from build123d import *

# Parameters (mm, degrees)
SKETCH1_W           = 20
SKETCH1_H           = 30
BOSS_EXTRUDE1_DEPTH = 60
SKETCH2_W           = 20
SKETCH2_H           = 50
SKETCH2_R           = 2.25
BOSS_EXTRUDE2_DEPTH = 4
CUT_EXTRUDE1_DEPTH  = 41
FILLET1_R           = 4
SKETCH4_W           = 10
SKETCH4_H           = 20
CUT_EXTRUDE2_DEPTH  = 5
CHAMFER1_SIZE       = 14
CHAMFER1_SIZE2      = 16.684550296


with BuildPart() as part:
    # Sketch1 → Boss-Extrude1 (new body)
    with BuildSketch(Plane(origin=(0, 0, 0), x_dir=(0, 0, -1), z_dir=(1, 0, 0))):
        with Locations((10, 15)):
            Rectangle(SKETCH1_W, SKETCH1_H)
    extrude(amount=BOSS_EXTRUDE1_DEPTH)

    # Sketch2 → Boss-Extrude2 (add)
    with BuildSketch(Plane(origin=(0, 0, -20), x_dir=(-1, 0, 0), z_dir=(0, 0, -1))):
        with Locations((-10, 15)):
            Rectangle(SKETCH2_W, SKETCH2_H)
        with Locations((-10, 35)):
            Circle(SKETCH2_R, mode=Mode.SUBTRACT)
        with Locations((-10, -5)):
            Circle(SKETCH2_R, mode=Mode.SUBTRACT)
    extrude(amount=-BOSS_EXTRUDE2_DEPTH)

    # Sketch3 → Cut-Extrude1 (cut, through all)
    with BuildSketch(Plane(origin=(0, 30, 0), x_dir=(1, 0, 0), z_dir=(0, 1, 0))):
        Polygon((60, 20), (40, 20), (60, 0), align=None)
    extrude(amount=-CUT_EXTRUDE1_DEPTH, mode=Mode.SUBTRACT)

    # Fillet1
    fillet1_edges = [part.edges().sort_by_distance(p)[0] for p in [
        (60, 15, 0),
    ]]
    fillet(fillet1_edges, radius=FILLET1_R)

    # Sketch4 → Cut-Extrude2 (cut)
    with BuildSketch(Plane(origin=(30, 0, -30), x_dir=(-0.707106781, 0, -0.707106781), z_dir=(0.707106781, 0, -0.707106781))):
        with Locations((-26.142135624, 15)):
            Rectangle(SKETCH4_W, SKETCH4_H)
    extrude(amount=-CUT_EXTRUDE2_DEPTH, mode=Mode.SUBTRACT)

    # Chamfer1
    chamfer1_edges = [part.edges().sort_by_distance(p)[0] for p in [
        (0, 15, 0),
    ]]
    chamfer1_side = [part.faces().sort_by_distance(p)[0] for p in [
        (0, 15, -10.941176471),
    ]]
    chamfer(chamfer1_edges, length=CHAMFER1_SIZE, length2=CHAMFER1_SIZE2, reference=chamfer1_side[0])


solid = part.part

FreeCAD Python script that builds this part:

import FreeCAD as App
import Part
import Sketcher


def edges_at(feature, points):
    """Names of the edges that pass closest to the given points."""
    edges = feature.Shape.Edges
    near = lambda p: min(range(len(edges)), key=lambda i: edges[i].distToShape(Part.Vertex(*p))[0])
    return sorted({f"Edge{near(p) + 1}" for p in points})

doc = App.newDocument("Part")
body = doc.addObject("PartDesign::Body", "Body")

sketch1 = body.newObject("Sketcher::SketchObject", "Sketch")
sketch1.AttachmentSupport = (doc.getObject("YZ_Plane"), [""])
sketch1.MapMode = "FlatFace"
sketch1.addGeometry(Part.LineSegment(App.Vector(30, 0, 0), App.Vector(0, 0, 0)), False)
sketch1.addGeometry(Part.LineSegment(App.Vector(0, 0, 0), App.Vector(0, -20, 0)), False)
sketch1.addGeometry(Part.LineSegment(App.Vector(0, -20, 0), App.Vector(30, -20, 0)), False)
sketch1.addGeometry(Part.LineSegment(App.Vector(30, -20, 0), App.Vector(30, 0, 0)), False)
sketch1.addConstraint(Sketcher.Constraint("Coincident", 0, 2, 1, 1))
sketch1.addConstraint(Sketcher.Constraint("Coincident", 1, 2, 2, 1))
sketch1.addConstraint(Sketcher.Constraint("Coincident", 2, 2, 3, 1))
sketch1.addConstraint(Sketcher.Constraint("Coincident", 3, 2, 0, 1))
sketch1.addConstraint(Sketcher.Constraint("Horizontal", 0))
sketch1.addConstraint(Sketcher.Constraint("Vertical", 1))
sketch1.addConstraint(Sketcher.Constraint("Horizontal", 2))
sketch1.addConstraint(Sketcher.Constraint("Vertical", 3))
sketch1.addConstraint(Sketcher.Constraint("Coincident", 0, 2, -1, 1))
sketch1.addConstraint(Sketcher.Constraint("DistanceX", 0, 2, 0, 1, 30.0))
sketch1.addConstraint(Sketcher.Constraint("DistanceY", 1, 2, 1, 1, 20.0))
pad1 = body.newObject("PartDesign::Pad", "Pad")
pad1.Profile = sketch1
pad1.Length = 60

sketch2 = body.newObject("Sketcher::SketchObject", "Sketch001")
sketch2.AttachmentSupport = (doc.getObject("XY_Plane"), [""])
sketch2.MapMode = "FlatFace"
sketch2.AttachmentOffset = App.Placement(App.Vector(0, 0, -20), App.Rotation())
sketch2.addGeometry(Part.LineSegment(App.Vector(20, 40, 0), App.Vector(20, -10, 0)), False)
sketch2.addGeometry(Part.LineSegment(App.Vector(20, -10, 0), App.Vector(0, -10, 0)), False)
sketch2.addGeometry(Part.LineSegment(App.Vector(0, -10, 0), App.Vector(0, 40, 0)), False)
sketch2.addGeometry(Part.LineSegment(App.Vector(0, 40, 0), App.Vector(20, 40, 0)), False)
sketch2.addGeometry(Part.Circle(App.Vector(10, -5, 0), App.Vector(0, 0, 1), 2.2), False)
sketch2.addGeometry(Part.Circle(App.Vector(10, 35, 0), App.Vector(0, 0, 1), 2.2), False)
sketch2.addConstraint(Sketcher.Constraint("Coincident", 0, 2, 1, 1))
sketch2.addConstraint(Sketcher.Constraint("Coincident", 1, 2, 2, 1))
sketch2.addConstraint(Sketcher.Constraint("Coincident", 2, 2, 3, 1))
sketch2.addConstraint(Sketcher.Constraint("Coincident", 3, 2, 0, 1))
sketch2.addConstraint(Sketcher.Constraint("Vertical", 0))
sketch2.addConstraint(Sketcher.Constraint("Horizontal", 1))
sketch2.addConstraint(Sketcher.Constraint("Vertical", 2))
sketch2.addConstraint(Sketcher.Constraint("Horizontal", 3))
sketch2.addConstraint(Sketcher.Constraint("Equal", 4, 5))
sketch2.addConstraint(Sketcher.Constraint("PointOnObject", 1, 2, -2))
sketch2.addConstraint(Sketcher.Constraint("Vertical", 4, 3, 5, 3))
sketch2.addConstraint(Sketcher.Constraint("Diameter", 4, 4.5))
sketch2.addConstraint(Sketcher.Constraint("DistanceX", 1, 2, 1, 1, 20.0))
sketch2.addConstraint(Sketcher.Constraint("DistanceY", 0, 2, 0, 1, 50.0))
sketch2.addConstraint(Sketcher.Constraint("DistanceX", -1, 1, 4, 3, 10.0))
sketch2.addConstraint(Sketcher.Constraint("DistanceY", 4, 3, -1, 1, 5.0))
sketch2.addConstraint(Sketcher.Constraint("DistanceY", -1, 1, 5, 3, 35.0))
sketch2.addConstraint(Sketcher.Constraint("DistanceY", 0, 2, -1, 1, 10.0))
pad2 = body.newObject("PartDesign::Pad", "Pad001")
pad2.Profile = sketch2
pad2.Length = 4

sketch3 = body.newObject("Sketcher::SketchObject", "Sketch002")
sketch3.AttachmentSupport = (doc.getObject("XZ_Plane"), [""])
sketch3.MapMode = "FlatFace"
sketch3.AttachmentOffset = App.Placement(App.Vector(0, 0, -30), App.Rotation())
sketch3.addGeometry(Part.LineSegment(App.Vector(60, -20, 0), App.Vector(40, -20, 0)), False)
sketch3.addGeometry(Part.LineSegment(App.Vector(40, -20, 0), App.Vector(60, 0, 0)), False)
sketch3.addGeometry(Part.LineSegment(App.Vector(60, 0, 0), App.Vector(60, -20, 0)), False)
sketch3.addConstraint(Sketcher.Constraint("Coincident", 0, 2, 1, 1))
sketch3.addConstraint(Sketcher.Constraint("Coincident", 1, 2, 2, 1))
sketch3.addConstraint(Sketcher.Constraint("Coincident", 2, 2, 0, 1))
sketch3.addConstraint(Sketcher.Constraint("Horizontal", 0))
sketch3.addConstraint(Sketcher.Constraint("Vertical", 2))
sketch3.addConstraint(Sketcher.Constraint("PointOnObject", 1, 2, -1))
sketch3.addConstraint(Sketcher.Constraint("Equal", 0, 2))
sketch3.addConstraint(Sketcher.Constraint("DistanceX", 0, 2, 0, 1, 20.0))
sketch3.addConstraint(Sketcher.Constraint("DistanceX", -1, 1, 0, 2, 40.0))
pocket1 = body.newObject("PartDesign::Pocket", "Pocket")
pocket1.Profile = sketch3
pocket1.Type = "ThroughAll"
pocket1.Reversed = True
doc.recompute()

fillet = body.newObject("PartDesign::Fillet", "Fillet")
fillet.Base = (pocket1, edges_at(pocket1, [(60, 15, 0)]))
fillet.Radius = 4

sketch4 = body.newObject("Sketcher::SketchObject", "Sketch003")
sketch4.Placement = App.Placement(App.Vector(30, 0, -30), App.Rotation(App.Vector(-0.707106781, 0, -0.707106781), App.Vector(0, 0.999999999, 0), App.Vector(0.707106781, 0, -0.707106781), "ZXY"))
sketch4.addGeometry(Part.LineSegment(App.Vector(-31, 25, 0), App.Vector(-31, 5, 0)), False)
sketch4.addGeometry(Part.LineSegment(App.Vector(-31, 5, 0), App.Vector(-21, 5, 0)), False)
sketch4.addGeometry(Part.LineSegment(App.Vector(-21, 5, 0), App.Vector(-21, 25, 0)), False)
sketch4.addGeometry(Part.LineSegment(App.Vector(-21, 25, 0), App.Vector(-31, 25, 0)), False)
sketch4.addConstraint(Sketcher.Constraint("Coincident", 0, 2, 1, 1))
sketch4.addConstraint(Sketcher.Constraint("Coincident", 1, 2, 2, 1))
sketch4.addConstraint(Sketcher.Constraint("Coincident", 2, 2, 3, 1))
sketch4.addConstraint(Sketcher.Constraint("Coincident", 3, 2, 0, 1))
sketch4.addConstraint(Sketcher.Constraint("Vertical", 0))
sketch4.addConstraint(Sketcher.Constraint("Horizontal", 1))
sketch4.addConstraint(Sketcher.Constraint("Vertical", 2))
sketch4.addConstraint(Sketcher.Constraint("Horizontal", 3))
sketch4.addConstraint(Sketcher.Constraint("DistanceX", 1, 1, 1, 2, 10.0))
sketch4.addConstraint(Sketcher.Constraint("DistanceY", 0, 2, 0, 1, 20.0))
sketch4.addConstraint(Sketcher.Constraint("DistanceY", -1, 1, 0, 2, 5.0))
sketch4.addConstraint(Sketcher.Constraint("DistanceX", 0, 2, -1, 1, 31.142136))
pocket2 = body.newObject("PartDesign::Pocket", "Pocket001")
pocket2.Profile = sketch4
pocket2.Length = 5
doc.recompute()

chamfer = body.newObject("PartDesign::Chamfer", "Chamfer")
chamfer.Base = (pocket2, edges_at(pocket2, [(0, 15, 0)]))
chamfer.ChamferType = "Two distances"
chamfer.Size = 14
chamfer.Size2 = 16.68455
chamfer.FlipDirection = True

doc.recompute()
